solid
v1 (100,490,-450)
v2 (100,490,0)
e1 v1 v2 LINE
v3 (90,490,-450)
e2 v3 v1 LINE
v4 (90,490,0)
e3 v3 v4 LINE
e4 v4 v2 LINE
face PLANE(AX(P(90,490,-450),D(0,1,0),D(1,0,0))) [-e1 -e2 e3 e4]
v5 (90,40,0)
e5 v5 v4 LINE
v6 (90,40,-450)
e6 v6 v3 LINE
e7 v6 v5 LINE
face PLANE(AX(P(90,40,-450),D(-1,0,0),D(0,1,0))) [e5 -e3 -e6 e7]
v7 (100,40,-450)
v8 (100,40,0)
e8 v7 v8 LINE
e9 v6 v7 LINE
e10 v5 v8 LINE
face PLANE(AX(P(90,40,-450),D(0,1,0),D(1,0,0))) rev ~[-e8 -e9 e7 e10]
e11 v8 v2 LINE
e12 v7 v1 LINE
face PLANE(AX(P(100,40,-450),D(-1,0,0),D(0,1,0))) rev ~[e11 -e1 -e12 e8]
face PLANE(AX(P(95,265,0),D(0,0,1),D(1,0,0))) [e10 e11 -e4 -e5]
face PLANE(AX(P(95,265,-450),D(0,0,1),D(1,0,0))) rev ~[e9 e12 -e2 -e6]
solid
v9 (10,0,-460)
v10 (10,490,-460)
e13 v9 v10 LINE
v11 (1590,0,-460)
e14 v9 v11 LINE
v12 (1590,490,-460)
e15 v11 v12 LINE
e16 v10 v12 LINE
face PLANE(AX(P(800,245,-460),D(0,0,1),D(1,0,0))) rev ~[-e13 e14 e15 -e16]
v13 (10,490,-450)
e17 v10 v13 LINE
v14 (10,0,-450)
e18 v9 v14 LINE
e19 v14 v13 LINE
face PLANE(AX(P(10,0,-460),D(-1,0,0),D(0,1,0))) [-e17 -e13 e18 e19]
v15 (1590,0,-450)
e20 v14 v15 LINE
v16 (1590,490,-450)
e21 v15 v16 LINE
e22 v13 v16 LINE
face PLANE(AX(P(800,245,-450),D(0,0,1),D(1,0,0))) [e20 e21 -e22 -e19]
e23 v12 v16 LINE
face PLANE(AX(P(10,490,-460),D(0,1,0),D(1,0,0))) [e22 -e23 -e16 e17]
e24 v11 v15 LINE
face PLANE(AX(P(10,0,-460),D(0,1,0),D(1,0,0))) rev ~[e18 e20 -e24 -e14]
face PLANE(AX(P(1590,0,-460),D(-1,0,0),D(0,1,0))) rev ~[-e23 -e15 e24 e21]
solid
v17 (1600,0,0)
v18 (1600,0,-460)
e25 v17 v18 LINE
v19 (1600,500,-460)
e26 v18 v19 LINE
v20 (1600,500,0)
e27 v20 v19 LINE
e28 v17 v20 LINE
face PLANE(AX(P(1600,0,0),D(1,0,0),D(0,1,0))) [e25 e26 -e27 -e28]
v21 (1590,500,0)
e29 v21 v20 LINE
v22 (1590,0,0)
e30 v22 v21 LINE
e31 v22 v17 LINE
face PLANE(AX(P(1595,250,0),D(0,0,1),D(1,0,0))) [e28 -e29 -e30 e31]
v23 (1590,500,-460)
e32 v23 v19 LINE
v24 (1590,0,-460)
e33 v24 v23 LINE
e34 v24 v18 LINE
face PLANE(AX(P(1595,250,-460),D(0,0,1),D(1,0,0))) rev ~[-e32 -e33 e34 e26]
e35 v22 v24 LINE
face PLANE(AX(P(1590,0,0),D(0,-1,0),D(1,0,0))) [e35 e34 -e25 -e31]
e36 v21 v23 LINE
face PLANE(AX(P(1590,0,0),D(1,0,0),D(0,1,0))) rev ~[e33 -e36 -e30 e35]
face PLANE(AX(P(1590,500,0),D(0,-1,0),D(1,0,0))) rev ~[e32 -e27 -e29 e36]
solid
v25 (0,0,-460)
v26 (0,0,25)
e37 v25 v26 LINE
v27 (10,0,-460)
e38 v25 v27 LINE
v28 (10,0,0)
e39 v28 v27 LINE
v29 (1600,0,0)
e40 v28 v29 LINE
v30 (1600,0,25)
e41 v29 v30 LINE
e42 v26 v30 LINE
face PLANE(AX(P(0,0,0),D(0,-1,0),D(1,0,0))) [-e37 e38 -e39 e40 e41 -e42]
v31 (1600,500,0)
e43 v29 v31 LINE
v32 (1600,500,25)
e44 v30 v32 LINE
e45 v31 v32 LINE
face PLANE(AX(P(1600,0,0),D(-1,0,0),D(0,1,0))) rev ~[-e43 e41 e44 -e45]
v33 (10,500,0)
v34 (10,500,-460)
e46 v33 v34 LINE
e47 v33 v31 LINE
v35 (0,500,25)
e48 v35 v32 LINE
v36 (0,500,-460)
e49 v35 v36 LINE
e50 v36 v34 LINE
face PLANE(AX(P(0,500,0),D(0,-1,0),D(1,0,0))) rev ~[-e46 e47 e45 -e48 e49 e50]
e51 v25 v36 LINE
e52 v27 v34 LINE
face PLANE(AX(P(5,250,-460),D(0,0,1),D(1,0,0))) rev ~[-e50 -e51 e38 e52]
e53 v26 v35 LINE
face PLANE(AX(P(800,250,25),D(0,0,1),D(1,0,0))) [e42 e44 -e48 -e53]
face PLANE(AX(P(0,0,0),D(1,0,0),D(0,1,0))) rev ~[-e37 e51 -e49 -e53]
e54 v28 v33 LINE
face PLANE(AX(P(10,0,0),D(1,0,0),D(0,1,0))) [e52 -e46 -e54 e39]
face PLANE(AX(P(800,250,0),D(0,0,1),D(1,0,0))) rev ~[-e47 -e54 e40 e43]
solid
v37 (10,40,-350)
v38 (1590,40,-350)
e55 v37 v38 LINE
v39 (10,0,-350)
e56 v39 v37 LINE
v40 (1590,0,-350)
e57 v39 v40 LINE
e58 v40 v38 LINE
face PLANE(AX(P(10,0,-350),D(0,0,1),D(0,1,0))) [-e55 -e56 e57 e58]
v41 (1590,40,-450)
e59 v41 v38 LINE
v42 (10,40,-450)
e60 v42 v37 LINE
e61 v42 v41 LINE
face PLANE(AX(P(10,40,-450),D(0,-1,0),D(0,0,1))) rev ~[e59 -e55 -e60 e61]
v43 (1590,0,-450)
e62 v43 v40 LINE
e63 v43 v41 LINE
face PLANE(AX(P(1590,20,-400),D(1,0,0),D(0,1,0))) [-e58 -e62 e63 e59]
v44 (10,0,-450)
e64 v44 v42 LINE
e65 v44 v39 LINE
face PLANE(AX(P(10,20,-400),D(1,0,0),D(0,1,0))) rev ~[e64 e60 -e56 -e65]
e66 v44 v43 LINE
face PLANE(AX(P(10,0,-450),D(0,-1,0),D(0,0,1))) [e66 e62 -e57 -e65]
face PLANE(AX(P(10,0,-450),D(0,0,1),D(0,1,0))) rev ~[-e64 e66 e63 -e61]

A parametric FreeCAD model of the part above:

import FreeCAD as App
import Part
import Sketcher
from FreeCAD import Vector


def add_polygon(sketch, points):
    """Adds a closed chain of lines whose ends are joined by coincident constraints."""
    first, n = sketch.GeometryCount, len(points)
    for a, b in zip(points, points[1:] + points[:1]):
        sketch.addGeometry(Part.LineSegment(App.Vector(*a, 0), App.Vector(*b, 0)), False)
    for i in range(n):
        sketch.addConstraint(Sketcher.Constraint("Coincident", first + i, 2, first + (i + 1) % n, 1))

doc = App.newDocument("Part")
body = doc.addObject("PartDesign::Body", "Body")

# Sketch on XY plane
sketch1 = doc.addObject("Sketcher::SketchObject", "Sketch")
body.addObject(sketch1)
sketch1.AttachmentSupport = (doc.XY_Plane, [""])
sketch1.MapMode = "FlatFace"
add_polygon(sketch1, [(0, 500), (0, 0), (1600, 0), (1600, 500)])  # lines 0-3
sketch1.addConstraint(Sketcher.Constraint("Vertical", 0))
sketch1.addConstraint(Sketcher.Constraint("Horizontal", 1))
sketch1.addConstraint(Sketcher.Constraint("Vertical", 2))
sketch1.addConstraint(Sketcher.Constraint("Horizontal", 3))
sketch1.addConstraint(Sketcher.Constraint("Coincident", 0, 2, -1, 1))
sketch1.addConstraint(Sketcher.Constraint("DistanceX", 1, 1, 1, 2, 1600.0))
sketch1.addConstraint(Sketcher.Constraint("DistanceY", 0, 2, 0, 1, 500.0))
pad1 = doc.addObject("PartDesign::Pad", "Pad")
body.addObject(pad1)
pad1.Profile = sketch1
pad1.Length = 25

# Sketch on XY plane
sketch2 = doc.addObject("Sketcher::SketchObject", "Sketch001")
body.addObject(sketch2)
sketch2.AttachmentSupport = (doc.XY_Plane, [""])
sketch2.MapMode = "FlatFace"
add_polygon(sketch2, [(0, 500), (0, 0), (10, 0), (10, 500)])  # lines 0-3
sketch2.addConstraint(Sketcher.Constraint("Vertical", 0))
sketch2.addConstraint(Sketcher.Constraint("Horizontal", 1))
sketch2.addConstraint(Sketcher.Constraint("Vertical", 2))
sketch2.addConstraint(Sketcher.Constraint("Horizontal", 3))
sketch2.addConstraint(Sketcher.Constraint("Coincident", 0, 2, -1, 1))
sketch2.addConstraint(Sketcher.Constraint("DistanceX", 1, 1, 1, 2, 10.0))
sketch2.addConstraint(Sketcher.Constraint("DistanceY", 0, 2, 0, 1, 500.0))
pad2 = doc.addObject("PartDesign::Pad", "Pad001")
body.addObject(pad2)
pad2.Profile = sketch2
pad2.Length = 460
pad2.Reversed = True
body2 = doc.addObject("PartDesign::Body", "Body001")

# Sketch on XY plane
sketch3 = doc.addObject("Sketcher::SketchObject", "Sketch002")
body2.addObject(sketch3)
sketch3.AttachmentSupport = (doc.getObject("XY_Plane001"), [""])
sketch3.MapMode = "FlatFace"
sketch3.AttachmentOffset = App.Placement(Vector(0, 0, -460), App.Rotation())
add_polygon(sketch3, [(10, 490), (10, 0), (1590, 0), (1590, 490)])  # lines 0-3
sketch3.addConstraint(Sketcher.Constraint("Vertical", 0))
sketch3.addConstraint(Sketcher.Constraint("Horizontal", 1))
sketch3.addConstraint(Sketcher.Constraint("Vertical", 2))
sketch3.addConstraint(Sketcher.Constraint("Horizontal", 3))
sketch3.addConstraint(Sketcher.Constraint("PointOnObject", 0, 2, -1))
sketch3.addConstraint(Sketcher.Constraint("DistanceX", 1, 1, 1, 2, 1580.0))
sketch3.addConstraint(Sketcher.Constraint("DistanceY", 0, 2, 0, 1, 490.0))
sketch3.addConstraint(Sketcher.Constraint("DistanceX", -1, 1, 0, 2, 10.0))
pad3 = doc.addObject("PartDesign::Pad", "Pad002")
body2.addObject(pad3)
pad3.Profile = sketch3
pad3.Length = 10
body3 = doc.addObject("PartDesign::Body", "Body002")

# Sketch on XY plane
sketch4 = doc.addObject("Sketcher::SketchObject", "Sketch003")
body3.addObject(sketch4)
sketch4.AttachmentSupport = (doc.getObject("XY_Plane002"), [""])
sketch4.MapMode = "FlatFace"
add_polygon(sketch4, [(1590, 500), (1590, 0), (1600, 0), (1600, 500)])  # lines 0-3
sketch4.addConstraint(Sketcher.Constraint("Vertical", 0))
sketch4.addConstraint(Sketcher.Constraint("Horizontal", 1))
sketch4.addConstraint(Sketcher.Constraint("Vertical", 2))
sketch4.addConstraint(Sketcher.Constraint("Horizontal", 3))
sketch4.addConstraint(Sketcher.Constraint("PointOnObject", 0, 2, -1))
sketch4.addConstraint(Sketcher.Constraint("DistanceX", 1, 1, 1, 2, 10.0))
sketch4.addConstraint(Sketcher.Constraint("DistanceY", 0, 2, 0, 1, 500.0))
sketch4.addConstraint(Sketcher.Constraint("DistanceX", -1, 1, 0, 2, 1590.0))
pad4 = doc.addObject("PartDesign::Pad", "Pad003")
body3.addObject(pad4)
pad4.Profile = sketch4
pad4.Length = 460
pad4.Reversed = True
body4 = doc.addObject("PartDesign::Body", "Body003")

# Sketch on YZ plane
sketch5 = doc.addObject("Sketcher::SketchObject", "Sketch004")
body4.addObject(sketch5)
sketch5.AttachmentSupport = (doc.getObject("YZ_Plane003"), [""])
sketch5.MapMode = "FlatFace"
sketch5.AttachmentOffset = App.Placement(Vector(0, 0, 10), App.Rotation())
add_polygon(sketch5, [(0, -350), (0, -450), (40, -450), (40, -350)])  # lines 0-3
sketch5.addConstraint(Sketcher.Constraint("Vertical", 0))
sketch5.addConstraint(Sketcher.Constraint("Horizontal", 1))
sketch5.addConstraint(Sketcher.Constraint("Vertical", 2))
sketch5.addConstraint(Sketcher.Constraint("Horizontal", 3))
sketch5.addConstraint(Sketcher.Constraint("PointOnObject", 0, 2, -2))
sketch5.addConstraint(Sketcher.Constraint("DistanceX", 1, 1, 1, 2, 40.0))
sketch5.addConstraint(Sketcher.Constraint("DistanceY", 0, 2, 0, 1, 100.0))
sketch5.addConstraint(Sketcher.Constraint("DistanceY", 0, 2, -1, 1, 450.0))
pad5 = doc.addObject("PartDesign::Pad", "Pad004")
body4.addObject(pad5)
pad5.Profile = sketch5
pad5.Length = 1580
body5 = doc.addObject("PartDesign::Body", "Body004")

# Sketch on XY plane
sketch6 = doc.addObject("Sketcher::SketchObject", "Sketch005")
body5.addObject(sketch6)
sketch6.AttachmentSupport = (doc.getObject("XY_Plane004"), [""])
sketch6.MapMode = "FlatFace"
sketch6.AttachmentOffset = App.Placement(Vector(0, 0, -450), App.Rotation())
add_polygon(sketch6, [(90, 490), (90, 40), (100, 40), (100, 490)])  # lines 0-3
sketch6.addConstraint(Sketcher.Constraint("Vertical", 0))
sketch6.addConstraint(Sketcher.Constraint("Horizontal", 1))
sketch6.addConstraint(Sketcher.Constraint("Vertical", 2))
sketch6.addConstraint(Sketcher.Constraint("Horizontal", 3))
sketch6.addConstraint(Sketcher.Constraint("DistanceX", 1, 1, 1, 2, 10.0))
sketch6.addConstraint(Sketcher.Constraint("DistanceY", 0, 2, 0, 1, 450.0))
sketch6.addConstraint(Sketcher.Constraint("DistanceX", -1, 1, 0, 2, 90.0))
sketch6.addConstraint(Sketcher.Constraint("DistanceY", -1, 1, 0, 2, 40.0))
pad6 = doc.addObject("PartDesign::Pad", "Pad005")
body5.addObject(pad6)
pad6.Profile = sketch6
pad6.Length = 450

doc.recompute()
